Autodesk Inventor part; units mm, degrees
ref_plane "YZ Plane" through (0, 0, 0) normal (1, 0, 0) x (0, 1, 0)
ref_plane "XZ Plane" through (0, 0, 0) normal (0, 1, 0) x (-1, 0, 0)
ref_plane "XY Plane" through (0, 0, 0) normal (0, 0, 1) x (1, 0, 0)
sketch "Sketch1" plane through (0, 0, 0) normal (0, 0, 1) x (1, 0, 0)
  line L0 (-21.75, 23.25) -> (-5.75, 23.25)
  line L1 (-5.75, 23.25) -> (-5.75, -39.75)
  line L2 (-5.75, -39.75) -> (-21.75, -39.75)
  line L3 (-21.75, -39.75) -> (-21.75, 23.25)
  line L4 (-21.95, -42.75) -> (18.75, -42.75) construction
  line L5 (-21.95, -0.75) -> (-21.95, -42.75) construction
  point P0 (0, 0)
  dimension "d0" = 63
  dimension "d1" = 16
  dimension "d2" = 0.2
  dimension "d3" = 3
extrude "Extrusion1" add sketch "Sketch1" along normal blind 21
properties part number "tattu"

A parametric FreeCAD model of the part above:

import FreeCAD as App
import Part
import Sketcher
from FreeCAD import Vector
Q = App.Units.Quantity


def add_polygon(sketch, points):
    """Adds a closed chain of lines whose ends are joined by coincident constraints."""
    first, n = sketch.GeometryCount, len(points)
    for a, b in zip(points, points[1:] + points[:1]):
        sketch.addGeometry(Part.LineSegment(App.Vector(*a, 0), App.Vector(*b, 0)), False)
    for i in range(n):
        sketch.addConstraint(Sketcher.Constraint("Coincident", first + i, 2, first + (i + 1) % n, 1))

doc = App.newDocument("Part")
body = doc.addObject("PartDesign::Body", "Body")

# Sketch on XY plane
sketch1 = body.newObject("Sketcher::SketchObject", "Sketch")
sketch1.AttachmentSupport = (doc.getObject("XY_Plane"), [""])
sketch1.MapMode = "FlatFace"
add_polygon(sketch1, [(-6, 23), (-22, 23), (-22, -40), (-6, -40)])  # lines 0-3
sketch1.addConstraint(Sketcher.Constraint("Horizontal", 0))
sketch1.addConstraint(Sketcher.Constraint("Vertical", 1))
sketch1.addConstraint(Sketcher.Constraint("Horizontal", 2))
sketch1.addConstraint(Sketcher.Constraint("Vertical", 3))
sketch1.addConstraint(Sketcher.Constraint("DistanceX", 0, 2, 0, 1, Q("16 mm")))
sketch1.addConstraint(Sketcher.Constraint("DistanceY", 1, 2, 1, 1, Q("63 mm")))
sketch1.addConstraint(Sketcher.Constraint("DistanceX", 0, 2, -1, 1, Q("21.75 mm")))
sketch1.addConstraint(Sketcher.Constraint("DistanceY", -1, 1, 0, 2, Q("23.25 mm")))
pad1 = body.newObject("PartDesign::Pad", "Pad")
pad1.Profile = sketch1
pad1.Length = 21

doc.recompute()
